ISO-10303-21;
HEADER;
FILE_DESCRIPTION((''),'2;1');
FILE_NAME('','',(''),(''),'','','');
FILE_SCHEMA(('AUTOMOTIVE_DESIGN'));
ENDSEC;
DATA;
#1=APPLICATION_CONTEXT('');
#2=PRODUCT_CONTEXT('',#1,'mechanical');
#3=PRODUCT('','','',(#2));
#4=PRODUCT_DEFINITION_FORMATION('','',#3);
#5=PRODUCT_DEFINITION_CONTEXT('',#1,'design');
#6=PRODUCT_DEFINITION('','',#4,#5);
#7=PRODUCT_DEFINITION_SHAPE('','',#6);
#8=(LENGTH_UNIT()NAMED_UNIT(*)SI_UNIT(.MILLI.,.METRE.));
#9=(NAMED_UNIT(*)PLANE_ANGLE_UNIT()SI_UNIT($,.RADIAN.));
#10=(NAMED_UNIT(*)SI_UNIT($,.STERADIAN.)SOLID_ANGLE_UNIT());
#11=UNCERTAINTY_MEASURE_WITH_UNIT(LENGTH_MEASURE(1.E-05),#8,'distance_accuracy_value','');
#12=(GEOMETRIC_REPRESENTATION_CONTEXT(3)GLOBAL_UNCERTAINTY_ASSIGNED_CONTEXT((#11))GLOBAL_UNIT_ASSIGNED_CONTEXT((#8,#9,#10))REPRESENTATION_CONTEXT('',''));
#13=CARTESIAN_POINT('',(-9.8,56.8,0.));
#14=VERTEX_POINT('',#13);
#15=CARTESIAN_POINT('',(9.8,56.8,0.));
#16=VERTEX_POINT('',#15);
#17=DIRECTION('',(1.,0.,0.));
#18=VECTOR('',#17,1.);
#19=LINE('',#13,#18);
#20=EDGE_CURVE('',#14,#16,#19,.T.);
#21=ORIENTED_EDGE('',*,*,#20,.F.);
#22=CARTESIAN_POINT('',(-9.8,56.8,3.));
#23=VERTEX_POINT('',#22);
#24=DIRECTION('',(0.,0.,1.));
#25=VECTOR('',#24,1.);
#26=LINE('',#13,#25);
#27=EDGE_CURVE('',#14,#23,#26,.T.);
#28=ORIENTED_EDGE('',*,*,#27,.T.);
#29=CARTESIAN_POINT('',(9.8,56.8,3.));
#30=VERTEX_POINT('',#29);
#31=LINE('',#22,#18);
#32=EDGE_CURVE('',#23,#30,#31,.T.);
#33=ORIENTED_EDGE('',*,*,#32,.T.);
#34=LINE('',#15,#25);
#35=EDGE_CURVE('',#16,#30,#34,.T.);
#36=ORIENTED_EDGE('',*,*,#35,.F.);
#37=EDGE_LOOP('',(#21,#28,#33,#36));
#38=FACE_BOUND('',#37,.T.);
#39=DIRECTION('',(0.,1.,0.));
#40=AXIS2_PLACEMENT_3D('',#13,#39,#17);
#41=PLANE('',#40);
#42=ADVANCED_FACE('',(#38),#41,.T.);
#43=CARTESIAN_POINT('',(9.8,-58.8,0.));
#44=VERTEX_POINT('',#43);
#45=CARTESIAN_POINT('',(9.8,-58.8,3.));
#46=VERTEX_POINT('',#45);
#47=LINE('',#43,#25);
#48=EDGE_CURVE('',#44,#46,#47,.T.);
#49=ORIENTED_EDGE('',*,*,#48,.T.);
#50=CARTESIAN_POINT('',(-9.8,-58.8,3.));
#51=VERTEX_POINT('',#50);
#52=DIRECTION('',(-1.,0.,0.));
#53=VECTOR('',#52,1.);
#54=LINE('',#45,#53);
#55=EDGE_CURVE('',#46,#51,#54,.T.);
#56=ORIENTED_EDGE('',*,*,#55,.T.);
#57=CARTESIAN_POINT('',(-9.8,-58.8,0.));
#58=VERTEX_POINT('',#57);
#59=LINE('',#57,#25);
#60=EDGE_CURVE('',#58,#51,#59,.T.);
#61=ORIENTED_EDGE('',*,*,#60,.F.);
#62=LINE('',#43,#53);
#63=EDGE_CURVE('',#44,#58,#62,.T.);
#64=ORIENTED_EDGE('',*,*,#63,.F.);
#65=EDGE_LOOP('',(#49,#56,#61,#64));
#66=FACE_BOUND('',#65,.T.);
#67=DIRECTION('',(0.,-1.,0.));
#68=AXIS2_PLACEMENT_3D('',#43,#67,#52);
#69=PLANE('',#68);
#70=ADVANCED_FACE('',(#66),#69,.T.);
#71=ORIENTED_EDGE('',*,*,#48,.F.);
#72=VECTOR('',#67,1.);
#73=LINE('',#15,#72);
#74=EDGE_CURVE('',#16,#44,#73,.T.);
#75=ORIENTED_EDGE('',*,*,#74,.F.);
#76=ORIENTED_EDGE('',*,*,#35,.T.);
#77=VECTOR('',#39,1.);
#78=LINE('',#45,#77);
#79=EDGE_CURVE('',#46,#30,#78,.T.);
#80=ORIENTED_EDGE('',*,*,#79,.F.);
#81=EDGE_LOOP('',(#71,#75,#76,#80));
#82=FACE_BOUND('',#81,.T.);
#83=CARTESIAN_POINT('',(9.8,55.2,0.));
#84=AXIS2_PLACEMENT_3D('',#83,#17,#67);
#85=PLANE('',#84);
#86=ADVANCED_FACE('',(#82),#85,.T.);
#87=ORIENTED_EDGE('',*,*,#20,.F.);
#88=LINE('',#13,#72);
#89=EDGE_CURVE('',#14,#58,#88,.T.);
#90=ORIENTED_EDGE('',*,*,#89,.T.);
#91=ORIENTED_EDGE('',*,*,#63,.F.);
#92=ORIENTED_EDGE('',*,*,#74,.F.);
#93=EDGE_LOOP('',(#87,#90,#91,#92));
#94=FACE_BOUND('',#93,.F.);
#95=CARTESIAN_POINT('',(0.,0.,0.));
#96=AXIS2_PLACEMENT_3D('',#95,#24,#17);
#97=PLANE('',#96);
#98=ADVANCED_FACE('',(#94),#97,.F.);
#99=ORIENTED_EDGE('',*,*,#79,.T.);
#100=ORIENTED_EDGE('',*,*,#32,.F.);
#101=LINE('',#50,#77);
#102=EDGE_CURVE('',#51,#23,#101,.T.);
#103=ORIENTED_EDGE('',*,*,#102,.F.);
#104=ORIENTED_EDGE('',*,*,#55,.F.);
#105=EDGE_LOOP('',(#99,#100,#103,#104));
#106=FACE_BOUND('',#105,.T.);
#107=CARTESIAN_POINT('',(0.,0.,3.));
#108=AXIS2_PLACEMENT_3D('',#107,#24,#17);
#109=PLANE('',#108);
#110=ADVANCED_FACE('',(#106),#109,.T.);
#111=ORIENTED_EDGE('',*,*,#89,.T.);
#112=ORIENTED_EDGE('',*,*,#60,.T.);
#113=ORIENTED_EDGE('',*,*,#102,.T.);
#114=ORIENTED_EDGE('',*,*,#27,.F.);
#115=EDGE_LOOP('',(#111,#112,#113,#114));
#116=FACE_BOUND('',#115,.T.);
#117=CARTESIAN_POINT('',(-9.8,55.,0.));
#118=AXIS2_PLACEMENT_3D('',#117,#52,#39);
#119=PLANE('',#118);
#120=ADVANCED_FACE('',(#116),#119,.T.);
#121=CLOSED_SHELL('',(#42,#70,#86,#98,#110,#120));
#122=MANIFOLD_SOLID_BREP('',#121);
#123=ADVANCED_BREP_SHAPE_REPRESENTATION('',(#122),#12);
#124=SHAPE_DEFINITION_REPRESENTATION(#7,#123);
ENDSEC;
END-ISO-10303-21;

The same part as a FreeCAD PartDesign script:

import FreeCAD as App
import Part
import Sketcher
from FreeCAD import Vector
Q = App.Units.Quantity


def add_polygon(sketch, points):
    """Adds a closed chain of lines whose ends are joined by coincident constraints."""
    first, n = sketch.GeometryCount, len(points)
    for a, b in zip(points, points[1:] + points[:1]):
        sketch.addGeometry(Part.LineSegment(App.Vector(*a, 0), App.Vector(*b, 0)), False)
    for i in range(n):
        sketch.addConstraint(Sketcher.Constraint("Coincident", first + i, 2, first + (i + 1) % n, 1))

doc = App.newDocument("Part")
body = doc.addObject("PartDesign::Body", "Body")

# Sketch on XY plane
sketch1 = body.newObject("Sketcher::SketchObject", "Sketch")
sketch1.AttachmentSupport = (doc.getObject("XY_Plane"), [""])
sketch1.MapMode = "FlatFace"
add_polygon(sketch1, [(-10, -59), (10, -59), (10, 57), (-10, 57)])  # lines 0-3
sketch1.addConstraint([
    Sketcher.Constraint("Horizontal", 0),
    Sketcher.Constraint("Vertical", 1),
    Sketcher.Constraint("Horizontal", 2),
    Sketcher.Constraint("Vertical", 3),
    Sketcher.Constraint("DistanceX", 0, 1, 0, 2, Q("19.6 mm")),
    Sketcher.Constraint("DistanceY", 1, 1, 1, 2, Q("115.6 mm")),
    Sketcher.Constraint("DistanceX", -1, 1, 0, 2, Q("9.8 mm")),
    Sketcher.Constraint("DistanceY", 0, 2, -1, 1, Q("58.8 mm")),
])
pad1 = body.newObject("PartDesign::Pad", "Pad")
pad1.Profile = sketch1
pad1.Length = 3

doc.recompute()
